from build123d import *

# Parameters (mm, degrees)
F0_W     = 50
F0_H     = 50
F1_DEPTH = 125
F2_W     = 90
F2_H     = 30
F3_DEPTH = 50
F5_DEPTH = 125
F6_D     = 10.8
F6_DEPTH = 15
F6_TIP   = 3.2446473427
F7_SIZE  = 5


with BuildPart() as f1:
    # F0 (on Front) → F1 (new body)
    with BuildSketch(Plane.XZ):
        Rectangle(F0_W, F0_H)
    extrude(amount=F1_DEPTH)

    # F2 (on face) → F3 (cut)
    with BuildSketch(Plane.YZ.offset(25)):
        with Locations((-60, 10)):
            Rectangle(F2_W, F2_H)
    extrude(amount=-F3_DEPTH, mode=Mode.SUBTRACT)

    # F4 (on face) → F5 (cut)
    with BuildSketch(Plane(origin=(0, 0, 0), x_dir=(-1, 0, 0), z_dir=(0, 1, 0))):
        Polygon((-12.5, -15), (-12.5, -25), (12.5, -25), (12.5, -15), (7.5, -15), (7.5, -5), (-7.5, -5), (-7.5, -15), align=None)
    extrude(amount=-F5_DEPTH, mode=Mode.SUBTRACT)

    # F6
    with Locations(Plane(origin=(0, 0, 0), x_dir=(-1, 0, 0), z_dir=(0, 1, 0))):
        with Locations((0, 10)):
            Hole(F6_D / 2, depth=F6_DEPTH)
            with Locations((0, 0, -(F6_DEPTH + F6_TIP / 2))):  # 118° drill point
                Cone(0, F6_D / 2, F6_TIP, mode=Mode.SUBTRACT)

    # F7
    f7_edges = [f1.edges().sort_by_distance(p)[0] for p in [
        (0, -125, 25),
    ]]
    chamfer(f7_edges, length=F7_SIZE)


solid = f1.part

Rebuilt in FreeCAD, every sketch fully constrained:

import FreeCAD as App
import Part
import Sketcher
from FreeCAD import Vector
Q = App.Units.Quantity


def edges_at(feature, points):
    """Names of the edges that pass closest to the given points."""
    edges = feature.Shape.Edges
    near = lambda p: min(range(len(edges)), key=lambda i: edges[i].distToShape(Part.Vertex(*p))[0])
    return sorted({f"Edge{near(p) + 1}" for p in points})


def add_polygon(sketch, points):
    """Adds a closed chain of lines whose ends are joined by coincident constraints."""
    first, n = sketch.GeometryCount, len(points)
    for a, b in zip(points, points[1:] + points[:1]):
        sketch.addGeometry(Part.LineSegment(App.Vector(*a, 0), App.Vector(*b, 0)), False)
    for i in range(n):
        sketch.addConstraint(Sketcher.Constraint("Coincident", first + i, 2, first + (i + 1) % n, 1))

doc = App.newDocument("Part")
body = doc.addObject("PartDesign::Body", "Body")

sketch1 = body.newObject("Sketcher::SketchObject", "Sketch")
sketch1.AttachmentSupport = (doc.getObject("XZ_Plane"), [""])
sketch1.MapMode = "FlatFace"
add_polygon(sketch1, [(-25, 25), (-25, -25), (25, -25), (25, 25)])
sketch1.addConstraint(Sketcher.Constraint("Vertical", 0))
sketch1.addConstraint(Sketcher.Constraint("Horizontal", 1))
sketch1.addConstraint(Sketcher.Constraint("Vertical", 2))
sketch1.addConstraint(Sketcher.Constraint("Horizontal", 3))
sketch1.addConstraint(Sketcher.Constraint("Symmetric", 0, 2, 2, 2, -1, 1))
sketch1.addConstraint(Sketcher.Constraint("Equal", 3, 0))
sketch1.addConstraint(Sketcher.Constraint("DistanceX", 1, 1, 1, 2, Q("50 mm")))
pad1 = body.newObject("PartDesign::Pad", "Pad")
pad1.Profile = sketch1
pad1.Length = 125

sketch2 = body.newObject("Sketcher::SketchObject", "Sketch001")
sketch2.AttachmentSupport = (doc.getObject("YZ_Plane"), [""])
sketch2.MapMode = "FlatFace"
sketch2.AttachmentOffset = App.Placement(Vector(0, 0, 25), App.Rotation())
add_polygon(sketch2, [(-105, 25), (-105, -5), (-15, -5), (-15, 25)])
sketch2.addConstraint(Sketcher.Constraint("Vertical", 0))
sketch2.addConstraint(Sketcher.Constraint("Horizontal", 1))
sketch2.addConstraint(Sketcher.Constraint("Vertical", 2))
sketch2.addConstraint(Sketcher.Constraint("Horizontal", 3))
sketch2.addConstraint(Sketcher.Constraint("DistanceX", 1, 1, 1, 2, Q("90 mm")))
sketch2.addConstraint(Sketcher.Constraint("DistanceY", 0, 2, 0, 1, Q("30 mm")))
sketch2.addConstraint(Sketcher.Constraint("DistanceX", 0, 2, -1, 1, Q("105 mm")))
sketch2.addConstraint(Sketcher.Constraint("DistanceY", 0, 2, -1, 1, Q("5 mm")))
pocket1 = body.newObject("PartDesign::Pocket", "Pocket")
pocket1.Profile = sketch2
pocket1.Length = 50

sketch3 = body.newObject("Sketcher::SketchObject", "Sketch002")
sketch3.AttachmentSupport = (doc.getObject("XZ_Plane"), [""])
sketch3.MapMode = "FlatFace"
add_polygon(sketch3, [(12, -15), (12, -25), (-12, -25), (-12, -15), (-8, -15), (-8, -5), (8, -5), (8, -15)])
sketch3.addConstraint(Sketcher.Constraint("Vertical", 0))
sketch3.addConstraint(Sketcher.Constraint("Horizontal", 1))
sketch3.addConstraint(Sketcher.Constraint("Vertical", 2))
sketch3.addConstraint(Sketcher.Constraint("Horizontal", 3))
sketch3.addConstraint(Sketcher.Constraint("Vertical", 4))
sketch3.addConstraint(Sketcher.Constraint("Horizontal", 5))
sketch3.addConstraint(Sketcher.Constraint("Vertical", 6))
sketch3.addConstraint(Sketcher.Constraint("Horizontal", 7))
sketch3.addConstraint(Sketcher.Constraint("Symmetric", 3, 2, 6, 2, -2))
sketch3.addConstraint(Sketcher.Constraint("Equal", 3, 7))
sketch3.addConstraint(Sketcher.Constraint("Equal", 2, 4))
sketch3.addConstraint(Sketcher.Constraint("DistanceX", 1, 2, 1, 1, Q("25 mm")))
sketch3.addConstraint(Sketcher.Constraint("DistanceX", 3, 1, 3, 2, Q("5 mm")))
sketch3.addConstraint(Sketcher.Constraint("DistanceY", 0, 2, 0, 1, Q("10 mm")))
sketch3.addConstraint(Sketcher.Constraint("DistanceY", 0, 2, -1, 1, Q("25 mm")))
pocket2 = body.newObject("PartDesign::Pocket", "Pocket001")
pocket2.Profile = sketch3
pocket2.Length = 125
pocket2.Reversed = True

sketch4 = body.newObject("Sketcher::SketchObject", "Sketch003")
sketch4.AttachmentSupport = (doc.getObject("XZ_Plane"), [""])
sketch4.MapMode = "FlatFace"
sketch4.addGeometry(Part.Circle(Vector(0, 10, 0), Vector(0, 0, 1), 5), False)
sketch4.addConstraint(Sketcher.Constraint("PointOnObject", 0, 3, -2))
sketch4.addConstraint(Sketcher.Constraint("Diameter", 0, Q("10.8 mm")))
sketch4.addConstraint(Sketcher.Constraint("DistanceY", -1, 1, 0, 3, Q("10 mm")))
doc.recompute()
hole = body.newObject("PartDesign::Hole", "Hole")
hole.Profile = sketch4
hole.ThreadType = "None"
hole.Diameter = 10.8
hole.DepthType = "Dimension"
hole.Depth = 15
hole.DrillPoint = "Angled"
hole.DrillPointAngle = 118
hole.Reversed = True
doc.recompute()

chamfer = body.newObject("PartDesign::Chamfer", "Chamfer")
chamfer.Base = (hole, edges_at(hole, [(0, -125, 25)]))
chamfer.Size = 5

doc.recompute()
